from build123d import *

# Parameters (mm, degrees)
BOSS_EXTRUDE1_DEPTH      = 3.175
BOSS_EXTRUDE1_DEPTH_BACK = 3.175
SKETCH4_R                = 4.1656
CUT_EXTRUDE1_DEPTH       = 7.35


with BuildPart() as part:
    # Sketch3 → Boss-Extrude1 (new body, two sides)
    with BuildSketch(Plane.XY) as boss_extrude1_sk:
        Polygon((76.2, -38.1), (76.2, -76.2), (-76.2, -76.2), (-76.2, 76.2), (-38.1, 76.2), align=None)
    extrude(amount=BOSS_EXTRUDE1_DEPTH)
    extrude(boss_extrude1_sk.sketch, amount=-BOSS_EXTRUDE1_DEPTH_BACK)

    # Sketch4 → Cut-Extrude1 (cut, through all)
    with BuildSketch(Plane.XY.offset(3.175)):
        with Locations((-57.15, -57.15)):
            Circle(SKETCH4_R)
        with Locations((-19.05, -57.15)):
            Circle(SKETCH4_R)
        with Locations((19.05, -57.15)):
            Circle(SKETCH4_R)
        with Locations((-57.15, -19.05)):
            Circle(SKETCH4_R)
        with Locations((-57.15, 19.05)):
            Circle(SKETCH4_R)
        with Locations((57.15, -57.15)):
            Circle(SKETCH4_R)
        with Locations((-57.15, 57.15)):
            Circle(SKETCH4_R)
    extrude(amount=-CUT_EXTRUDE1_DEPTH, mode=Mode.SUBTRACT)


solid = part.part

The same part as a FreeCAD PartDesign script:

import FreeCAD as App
import Part
import Sketcher
Q = App.Units.Quantity


def add_polygon(sketch, points):
    """Adds a closed chain of lines whose ends are joined by coincident constraints."""
    first, n = sketch.GeometryCount, len(points)
    for a, b in zip(points, points[1:] + points[:1]):
        sketch.addGeometry(Part.LineSegment(App.Vector(*a, 0), App.Vector(*b, 0)), False)
    for i in range(n):
        sketch.addConstraint(Sketcher.Constraint("Coincident", first + i, 2, first + (i + 1) % n, 1))

doc = App.newDocument("Part")
body = doc.addObject("PartDesign::Body", "Body")

# Sketch on XY plane
sketch1 = body.newObject("Sketcher::SketchObject", "Sketch")
sketch1.AttachmentSupport = (doc.getObject("XY_Plane"), [""])
sketch1.MapMode = "FlatFace"
add_polygon(sketch1, [(76, -76), (76, -38), (-38, 76), (-76, 76), (-76, -76)])  # lines 0-4
sketch1.addConstraint([
    Sketcher.Constraint("Vertical", 0),
    Sketcher.Constraint("Horizontal", 2),
    Sketcher.Constraint("Vertical", 3),
    Sketcher.Constraint("Horizontal", 4),
    Sketcher.Constraint("Symmetric", 2, 2, 4, 2, -1, 1),
    Sketcher.Constraint("Equal", 2, 0),
    Sketcher.Constraint("Equal", 4, 3),
    Sketcher.Constraint("DistanceX", 4, 1, 4, 2, Q("6 in")),
    Sketcher.Constraint("DistanceX", 2, 2, 2, 1, Q("1.5 in")),
])
pad1 = body.newObject("PartDesign::Pad", "Pad")
pad1.Profile = sketch1
pad1.Type = "TwoLengths"
pad1.Length = Q("0.125 in")
pad1.Length2 = Q("0.125 in")

# Sketch on XY plane
sketch2 = body.newObject("Sketcher::SketchObject", "Sketch001")
sketch2.AttachmentSupport = (doc.getObject("XY_Plane"), [""])
sketch2.MapMode = "FlatFace"
sketch2.AttachmentOffset = App.Placement(App.Vector(0, 0, 0.125 * 25.4), App.Rotation())
sketch2.addGeometry([
    Part.Circle(App.Vector(-57.1, -57.1, 0), App.Vector(0, 0, 1), 4.2),  # 0
    Part.Circle(App.Vector(-19.1, -57.1, 0), App.Vector(0, 0, 1), 4.2),  # 1
    Part.Circle(App.Vector(19.1, -57.1, 0), App.Vector(0, 0, 1), 4.2),  # 2
    Part.Circle(App.Vector(-57.1, -19.1, 0), App.Vector(0, 0, 1), 4.2),  # 3
    Part.Circle(App.Vector(-57.1, 19.1, 0), App.Vector(0, 0, 1), 4.2),  # 4
    Part.Circle(App.Vector(57.1, -57.1, 0), App.Vector(0, 0, 1), 4.2),  # 5
    Part.Circle(App.Vector(-57.1, 57.1, 0), App.Vector(0, 0, 1), 4.2),  # 6
], False)
sketch2.addConstraint([
    Sketcher.Constraint("Equal", 0, 1),
    Sketcher.Constraint("Equal", 1, 2),
    Sketcher.Constraint("Equal", 2, 3),
    Sketcher.Constraint("Equal", 3, 4),
    Sketcher.Constraint("Equal", 4, 5),
    Sketcher.Constraint("Equal", 5, 6),
    Sketcher.Constraint("Symmetric", 5, 3, 6, 3, -1, 1),
    Sketcher.Constraint("Symmetric", 1, 3, 2, 3, -2),
    Sketcher.Constraint("Symmetric", 0, 3, 5, 3, -2),
    Sketcher.Constraint("Symmetric", 3, 3, 4, 3, -1),
    Sketcher.Constraint("Horizontal", 0, 3, 1, 3),
    Sketcher.Constraint("Vertical", 0, 3, 3, 3),
    Sketcher.Constraint("Diameter", 0, Q("0.328 in")),
    Sketcher.Constraint("DistanceX", 0, 3, 2, 3, Q("3 in")),
    Sketcher.Constraint("DistanceY", 0, 3, 4, 3, Q("3 in")),
    Sketcher.Constraint("DistanceX", 0, 3, 1, 3, Q("1.5 in")),
    Sketcher.Constraint("DistanceY", 0, 3, 3, 3, Q("1.5 in")),
])
pocket1 = body.newObject("PartDesign::Pocket", "Pocket")
pocket1.Profile = sketch2
pocket1.Type = "ThroughAll"

doc.recompute()
